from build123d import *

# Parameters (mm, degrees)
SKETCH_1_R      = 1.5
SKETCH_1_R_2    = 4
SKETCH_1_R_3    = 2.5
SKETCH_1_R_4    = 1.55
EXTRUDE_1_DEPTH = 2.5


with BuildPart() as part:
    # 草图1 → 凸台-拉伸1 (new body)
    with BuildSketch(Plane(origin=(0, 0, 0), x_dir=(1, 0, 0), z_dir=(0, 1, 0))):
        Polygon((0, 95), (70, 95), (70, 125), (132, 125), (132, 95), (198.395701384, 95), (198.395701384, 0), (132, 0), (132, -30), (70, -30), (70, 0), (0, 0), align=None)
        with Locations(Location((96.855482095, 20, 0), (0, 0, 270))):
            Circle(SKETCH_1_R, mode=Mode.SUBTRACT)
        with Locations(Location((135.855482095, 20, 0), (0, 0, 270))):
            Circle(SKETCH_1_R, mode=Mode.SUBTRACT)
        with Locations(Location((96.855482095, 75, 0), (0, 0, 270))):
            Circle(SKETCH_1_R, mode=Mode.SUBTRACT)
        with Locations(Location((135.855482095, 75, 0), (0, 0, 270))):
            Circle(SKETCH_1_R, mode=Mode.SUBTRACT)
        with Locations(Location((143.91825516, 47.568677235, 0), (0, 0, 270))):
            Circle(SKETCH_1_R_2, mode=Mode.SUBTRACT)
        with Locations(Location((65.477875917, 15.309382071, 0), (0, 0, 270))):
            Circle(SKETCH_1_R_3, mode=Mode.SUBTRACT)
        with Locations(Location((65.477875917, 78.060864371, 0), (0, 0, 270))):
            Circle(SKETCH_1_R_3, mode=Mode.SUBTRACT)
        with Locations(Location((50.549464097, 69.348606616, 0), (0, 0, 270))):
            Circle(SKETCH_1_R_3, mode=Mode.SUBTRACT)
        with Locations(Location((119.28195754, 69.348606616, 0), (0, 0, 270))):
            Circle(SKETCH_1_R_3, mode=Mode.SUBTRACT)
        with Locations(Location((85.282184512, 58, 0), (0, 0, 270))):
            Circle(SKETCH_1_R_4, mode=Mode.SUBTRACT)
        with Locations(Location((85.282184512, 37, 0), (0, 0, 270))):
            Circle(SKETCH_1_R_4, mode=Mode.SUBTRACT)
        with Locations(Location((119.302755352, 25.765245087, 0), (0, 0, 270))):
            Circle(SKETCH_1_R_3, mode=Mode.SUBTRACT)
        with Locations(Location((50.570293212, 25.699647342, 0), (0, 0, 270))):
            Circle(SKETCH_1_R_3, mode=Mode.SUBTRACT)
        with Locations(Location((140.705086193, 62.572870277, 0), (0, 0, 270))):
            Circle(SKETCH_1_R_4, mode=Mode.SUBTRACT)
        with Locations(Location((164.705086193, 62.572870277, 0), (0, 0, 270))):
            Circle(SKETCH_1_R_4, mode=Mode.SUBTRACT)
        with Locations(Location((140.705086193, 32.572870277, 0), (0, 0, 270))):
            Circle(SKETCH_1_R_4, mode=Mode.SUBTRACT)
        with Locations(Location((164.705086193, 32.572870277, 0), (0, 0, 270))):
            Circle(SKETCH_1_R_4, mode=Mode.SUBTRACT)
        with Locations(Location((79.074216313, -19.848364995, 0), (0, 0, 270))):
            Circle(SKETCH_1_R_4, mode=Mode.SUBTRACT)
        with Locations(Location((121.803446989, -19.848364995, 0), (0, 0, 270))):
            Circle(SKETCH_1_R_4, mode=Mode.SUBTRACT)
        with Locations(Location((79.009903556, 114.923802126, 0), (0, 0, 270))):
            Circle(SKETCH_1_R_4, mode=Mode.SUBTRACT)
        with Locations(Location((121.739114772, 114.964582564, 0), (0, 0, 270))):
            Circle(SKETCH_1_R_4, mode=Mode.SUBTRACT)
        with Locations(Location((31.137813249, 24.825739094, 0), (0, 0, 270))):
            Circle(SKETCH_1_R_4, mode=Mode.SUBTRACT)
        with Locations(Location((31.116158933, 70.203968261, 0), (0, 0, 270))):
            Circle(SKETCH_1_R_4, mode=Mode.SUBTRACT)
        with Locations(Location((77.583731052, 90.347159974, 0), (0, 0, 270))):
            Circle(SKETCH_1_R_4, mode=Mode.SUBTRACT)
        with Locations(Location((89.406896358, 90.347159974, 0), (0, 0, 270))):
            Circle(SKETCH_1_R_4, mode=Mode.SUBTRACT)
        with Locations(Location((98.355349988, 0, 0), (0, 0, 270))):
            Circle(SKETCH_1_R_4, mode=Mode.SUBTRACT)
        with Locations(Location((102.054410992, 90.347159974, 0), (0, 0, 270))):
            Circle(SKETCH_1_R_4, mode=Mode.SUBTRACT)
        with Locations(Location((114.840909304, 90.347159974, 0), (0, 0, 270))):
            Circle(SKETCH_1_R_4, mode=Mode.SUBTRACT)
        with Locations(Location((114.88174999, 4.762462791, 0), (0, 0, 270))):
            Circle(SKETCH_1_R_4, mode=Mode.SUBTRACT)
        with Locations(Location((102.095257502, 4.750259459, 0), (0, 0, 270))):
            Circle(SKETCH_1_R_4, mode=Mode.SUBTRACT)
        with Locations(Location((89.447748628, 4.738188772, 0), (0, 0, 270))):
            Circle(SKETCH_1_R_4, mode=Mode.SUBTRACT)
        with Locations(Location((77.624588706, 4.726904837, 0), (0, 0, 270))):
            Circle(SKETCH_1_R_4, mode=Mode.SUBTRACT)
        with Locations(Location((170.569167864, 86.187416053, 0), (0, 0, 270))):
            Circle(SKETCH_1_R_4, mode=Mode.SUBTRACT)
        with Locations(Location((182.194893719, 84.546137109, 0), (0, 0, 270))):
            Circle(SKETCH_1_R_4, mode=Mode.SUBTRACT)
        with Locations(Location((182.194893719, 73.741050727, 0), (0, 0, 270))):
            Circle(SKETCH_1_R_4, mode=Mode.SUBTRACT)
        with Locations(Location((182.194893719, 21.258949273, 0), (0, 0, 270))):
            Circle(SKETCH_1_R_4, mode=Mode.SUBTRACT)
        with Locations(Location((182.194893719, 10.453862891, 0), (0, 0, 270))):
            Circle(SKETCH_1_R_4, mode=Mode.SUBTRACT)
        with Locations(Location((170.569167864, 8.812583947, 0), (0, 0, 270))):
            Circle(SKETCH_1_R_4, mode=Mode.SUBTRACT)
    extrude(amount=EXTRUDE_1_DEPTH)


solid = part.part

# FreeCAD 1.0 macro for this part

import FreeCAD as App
import Part
import Sketcher


def add_polygon(sketch, points):
    """Adds a closed chain of lines whose ends are joined by coincident constraints."""
    first, n = sketch.GeometryCount, len(points)
    for a, b in zip(points, points[1:] + points[:1]):
        sketch.addGeometry(Part.LineSegment(App.Vector(*a, 0), App.Vector(*b, 0)), False)
    for i in range(n):
        sketch.addConstraint(Sketcher.Constraint("Coincident", first + i, 2, first + (i + 1) % n, 1))

doc = App.newDocument("Part")
body = doc.addObject("PartDesign::Body", "Body")

sketch1 = body.newObject("Sketcher::SketchObject", "Sketch")
sketch1.AttachmentSupport = (doc.getObject("XZ_Plane"), [""])
sketch1.MapMode = "FlatFace"
add_polygon(sketch1, [(70, -95), (0, -95), (0, 0), (70, 0), (70, 30), (132, 30), (132, 0), (198.395701, 0), (198.395701, -95), (132, -95), (132, -125), (70, -125)])
sketch1.addGeometry(Part.Circle(App.Vector(182.194894, -10.453863, 0), App.Vector(0, 0, 1), 1.55), False)
sketch1.addGeometry(Part.Circle(App.Vector(170.569168, -8.812584, 0), App.Vector(0, 0, 1), 1.55), False)
sketch1.addGeometry(Part.Circle(App.Vector(121.803447, 19.848365, 0), App.Vector(0, 0, 1), 1.55), False)
sketch1.addGeometry(Part.Circle(App.Vector(114.88175, -4.762463, 0), App.Vector(0, 0, 1), 1.55), False)
sketch1.addGeometry(Part.Circle(App.Vector(182.194894, -21.258949, 0), App.Vector(0, 0, 1), 1.55), False)
sketch1.addGeometry(Part.Circle(App.Vector(164.705086, -32.57287, 0), App.Vector(0, 0, 1), 1.55), False)
sketch1.addGeometry(Part.Circle(App.Vector(135.855482, -20, 0), App.Vector(0, 0, 1), 1.5), False)
sketch1.addGeometry(Part.Circle(App.Vector(119.302755, -25.765245, 0), App.Vector(0, 0, 1), 2.5), False)
sketch1.addGeometry(Part.Circle(App.Vector(140.705086, -32.57287, 0), App.Vector(0, 0, 1), 1.55), False)
sketch1.addGeometry(Part.Circle(App.Vector(79.074216, 19.848365, 0), App.Vector(0, 0, 1), 1.55), False)
sketch1.addGeometry(Part.Circle(App.Vector(98.35535, 0, 0), App.Vector(0, 0, 1), 1.55), False)
sketch1.addGeometry(Part.Circle(App.Vector(102.095258, -4.750259, 0), App.Vector(0, 0, 1), 1.55), False)
sketch1.addGeometry(Part.Circle(App.Vector(89.447749, -4.738189, 0), App.Vector(0, 0, 1), 1.55), False)
sketch1.addGeometry(Part.Circle(App.Vector(77.624589, -4.726905, 0), App.Vector(0, 0, 1), 1.55), False)
sketch1.addGeometry(Part.Circle(App.Vector(96.855482, -20, 0), App.Vector(0, 0, 1), 1.5), False)
sketch1.addGeometry(Part.Circle(App.Vector(85.282185, -37, 0), App.Vector(0, 0, 1), 1.55), False)
sketch1.addGeometry(Part.Circle(App.Vector(65.477876, -15.309382, 0), App.Vector(0, 0, 1), 2.5), False)
sketch1.addGeometry(Part.Circle(App.Vector(50.570293, -25.699647, 0), App.Vector(0, 0, 1), 2.5), False)
sketch1.addGeometry(Part.Circle(App.Vector(31.137813, -24.825739, 0), App.Vector(0, 0, 1), 1.55), False)
sketch1.addGeometry(Part.Circle(App.Vector(164.705086, -62.57287, 0), App.Vector(0, 0, 1), 1.55), False)
sketch1.addGeometry(Part.Circle(App.Vector(182.194894, -73.741051, 0), App.Vector(0, 0, 1), 1.55), False)
sketch1.addGeometry(Part.Circle(App.Vector(143.918255, -47.568677, 0), App.Vector(0, 0, 1), 4), False)
sketch1.addGeometry(Part.Circle(App.Vector(140.705086, -62.57287, 0), App.Vector(0, 0, 1), 1.55), False)
sketch1.addGeometry(Part.Circle(App.Vector(135.855482, -75, 0), App.Vector(0, 0, 1), 1.5), False)
sketch1.addGeometry(Part.Circle(App.Vector(119.281958, -69.348607, 0), App.Vector(0, 0, 1), 2.5), False)
sketch1.addGeometry(Part.Circle(App.Vector(182.194894, -84.546137, 0), App.Vector(0, 0, 1), 1.55), False)
sketch1.addGeometry(Part.Circle(App.Vector(170.569168, -86.187416, 0), App.Vector(0, 0, 1), 1.55), False)
sketch1.addGeometry(Part.Circle(App.Vector(114.840909, -90.34716, 0), App.Vector(0, 0, 1), 1.55), False)
sketch1.addGeometry(Part.Circle(App.Vector(121.739115, -114.964583, 0), App.Vector(0, 0, 1), 1.55), False)
sketch1.addGeometry(Part.Circle(App.Vector(85.282185, -58, 0), App.Vector(0, 0, 1), 1.55), False)
sketch1.addGeometry(Part.Circle(App.Vector(96.855482, -75, 0), App.Vector(0, 0, 1), 1.5), False)
sketch1.addGeometry(Part.Circle(App.Vector(50.549464, -69.348607, 0), App.Vector(0, 0, 1), 2.5), False)
sketch1.addGeometry(Part.Circle(App.Vector(65.477876, -78.060864, 0), App.Vector(0, 0, 1), 2.5), False)
sketch1.addGeometry(Part.Circle(App.Vector(31.116159, -70.203968, 0), App.Vector(0, 0, 1), 1.55), False)
sketch1.addGeometry(Part.Circle(App.Vector(102.054411, -90.34716, 0), App.Vector(0, 0, 1), 1.55), False)
sketch1.addGeometry(Part.Circle(App.Vector(89.406896, -90.34716, 0), App.Vector(0, 0, 1), 1.55), False)
sketch1.addGeometry(Part.Circle(App.Vector(77.583731, -90.34716, 0), App.Vector(0, 0, 1), 1.55), False)
sketch1.addGeometry(Part.Circle(App.Vector(79.009904, -114.923802, 0), App.Vector(0, 0, 1), 1.55), False)
sketch1.addConstraint(Sketcher.Constraint("Horizontal", 0))
sketch1.addConstraint(Sketcher.Constraint("Vertical", 1))
sketch1.addConstraint(Sketcher.Constraint("Horizontal", 2))
sketch1.addConstraint(Sketcher.Constraint("Vertical", 3))
sketch1.addConstraint(Sketcher.Constraint("Horizontal", 4))
sketch1.addConstraint(Sketcher.Constraint("Vertical", 5))
sketch1.addConstraint(Sketcher.Constraint("Horizontal", 6))
sketch1.addConstraint(Sketcher.Constraint("Vertical", 7))
sketch1.addConstraint(Sketcher.Constraint("Horizontal", 8))
sketch1.addConstraint(Sketcher.Constraint("Vertical", 9))
sketch1.addConstraint(Sketcher.Constraint("Horizontal", 10))
sketch1.addConstraint(Sketcher.Constraint("Vertical", 11))
sketch1.addConstraint(Sketcher.Constraint("Coincident", 1, 2, -1, 1))
sketch1.addConstraint(Sketcher.Constraint("Equal", 12, 13))
sketch1.addConstraint(Sketcher.Constraint("Equal", 13, 14))
sketch1.addConstraint(Sketcher.Constraint("Equal", 14, 15))
sketch1.addConstraint(Sketcher.Constraint("Equal", 15, 16))
sketch1.addConstraint(Sketcher.Constraint("Equal", 16, 17))
sketch1.addConstraint(Sketcher.Constraint("Equal", 17, 20))
sketch1.addConstraint(Sketcher.Constraint("Equal", 20, 21))
sketch1.addConstraint(Sketcher.Constraint("Equal", 21, 22))
sketch1.addConstraint(Sketcher.Constraint("Equal", 22, 23))
sketch1.addConstraint(Sketcher.Constraint("Equal", 23, 24))
sketch1.addConstraint(Sketcher.Constraint("Equal", 24, 25))
sketch1.addConstraint(Sketcher.Constraint("Equal", 18, 26))
sketch1.addConstraint(Sketcher.Constraint("Equal", 25, 27))
sketch1.addConstraint(Sketcher.Constraint("Equal", 19, 28))
sketch1.addConstraint(Sketcher.Constraint("Equal", 28, 29))
sketch1.addConstraint(Sketcher.Constraint("Equal", 27, 30))
sketch1.addConstraint(Sketcher.Constraint("Equal", 30, 31))
sketch1.addConstraint(Sketcher.Constraint("Equal", 31, 32))
sketch1.addConstraint(Sketcher.Constraint("Equal", 32, 34))
sketch1.addConstraint(Sketcher.Constraint("Equal", 26, 35))
sketch1.addConstraint(Sketcher.Constraint("Equal", 29, 36))
sketch1.addConstraint(Sketcher.Constraint("Equal", 34, 37))
sketch1.addConstraint(Sketcher.Constraint("Equal", 37, 38))
sketch1.addConstraint(Sketcher.Constraint("Equal", 38, 39))
sketch1.addConstraint(Sketcher.Constraint("Equal", 39, 40))
sketch1.addConstraint(Sketcher.Constraint("Equal", 40, 41))
sketch1.addConstraint(Sketcher.Constraint("Equal", 35, 42))
sketch1.addConstraint(Sketcher.Constraint("Equal", 36, 43))
sketch1.addConstraint(Sketcher.Constraint("Equal", 43, 44))
sketch1.addConstraint(Sketcher.Constraint("Equal", 41, 45))
sketch1.addConstraint(Sketcher.Constraint("Equal", 45, 46))
sketch1.addConstraint(Sketcher.Constraint("Equal", 46, 47))
sketch1.addConstraint(Sketcher.Constraint("Equal", 47, 48))
sketch1.addConstraint(Sketcher.Constraint("Equal", 48, 49))
sketch1.addConstraint(Sketcher.Constraint("PointOnObject", 22, 3, -1))
sketch1.addConstraint(Sketcher.Constraint("PointOnObject", 5, 2, -1))
sketch1.addConstraint(Sketcher.Constraint("Horizontal", 17, 3, 20, 3))
sketch1.addConstraint(Sketcher.Constraint("Horizontal", 14, 3, 21, 3))
sketch1.addConstraint(Sketcher.Constraint("Horizontal", 18, 3, 26, 3))
sketch1.addConstraint(Sketcher.Constraint("Horizontal", 31, 3, 34, 3))
sketch1.addConstraint(Sketcher.Constraint("Horizontal", 35, 3, 42, 3))
sketch1.addConstraint(Sketcher.Constraint("Horizontal", 36, 3, 43, 3))
sketch1.addConstraint(Sketcher.Constraint("Horizontal", 39, 3, 46, 3))
sketch1.addConstraint(Sketcher.Constraint("Horizontal", 46, 3, 47, 3))
sketch1.addConstraint(Sketcher.Constraint("Horizontal", 47, 3, 48, 3))
sketch1.addConstraint(Sketcher.Constraint("Horizontal", 0, 2, 7, 2))
sketch1.addConstraint(Sketcher.Constraint("Vertical", 12, 3, 16, 3))
sketch1.addConstraint(Sketcher.Constraint("Vertical", 17, 3, 31, 3))
sketch1.addConstraint(Sketcher.Constraint("Vertical", 16, 3, 32, 3))
sketch1.addConstraint(Sketcher.Constraint("Vertical", 20, 3, 34, 3))
sketch1.addConstraint(Sketcher.Constraint("Vertical", 18, 3, 35, 3))
sketch1.addConstraint(Sketcher.Constraint("Vertical", 32, 3, 37, 3))
sketch1.addConstraint(Sketcher.Constraint("Vertical", 13, 3, 38, 3))
sketch1.addConstraint(Sketcher.Constraint("Vertical", 27, 3, 41, 3))
sketch1.addConstraint(Sketcher.Constraint("Vertical", 26, 3, 42, 3))
sketch1.addConstraint(Sketcher.Constraint("Vertical", 28, 3, 44, 3))
sketch1.addConstraint(Sketcher.Constraint("Vertical", 5, 2, 8, 2))
sketch1.addConstraint(Sketcher.Constraint("Vertical", 3, 2, 10, 2))
sketch1.addConstraint(Sketcher.Constraint("Equal", 5, 9))
sketch1.addConstraint(Sketcher.Constraint("Diameter", 18, 3.0))
sketch1.addConstraint(Sketcher.Constraint("Diameter", 19, 5.0))
sketch1.addConstraint(Sketcher.Constraint("Diameter", 33, 8.0))
sketch1.addConstraint(Sketcher.Constraint("Diameter", 12, 3.1))
sketch1.addConstraint(Sketcher.Constraint("DistanceX", 0, 2, 0, 1, 70.0))
sketch1.addConstraint(Sketcher.Constraint("DistanceX", 4, 1, 4, 2, 62.0))
sketch1.addConstraint(Sketcher.Constraint("DistanceY", 1, 1, 1, 2, 95.0))
sketch1.addConstraint(Sketcher.Constraint("DistanceY", 3, 1, 3, 2, 30.0))
sketch1.addConstraint(Sketcher.Constraint("DistanceY", 18, 3, -1, 1, 20.0))
sketch1.addConstraint(Sketcher.Constraint("DistanceY", 27, 3, -1, 1, 37.0))
sketch1.addConstraint(Sketcher.Constraint("DistanceY", 35, 3, -1, 1, 75.0))
sketch1.addConstraint(Sketcher.Constraint("DistanceY", 41, 3, -1, 1, 58.0))
sketch1.addConstraint(Sketcher.Constraint("DistanceX", 20, 3, 17, 3, 24.0))
sketch1.addConstraint(Sketcher.Constraint("DistanceY", 31, 3, 17, 3, 30.0))
sketch1.addConstraint(Sketcher.Constraint("DistanceX", 42, 3, 35, 3, 39.0))
sketch1.addConstraint(Sketcher.Constraint("DistanceX", 6, 1, 6, 2, 66.395701))
sketch1.addConstraint(Sketcher.Constraint("DistanceX", 24, 3, 15, 3, 25.434001))
sketch1.addConstraint(Sketcher.Constraint("DistanceY", 12, 3, 15, 3, 5.6914))
sketch1.addConstraint(Sketcher.Constraint("DistanceX", 22, 3, 15, 3, 16.5264))
sketch1.addConstraint(Sketcher.Constraint("DistanceY", 32, 3, 16, 3, 52.482101))
sketch1.addConstraint(Sketcher.Constraint("DistanceX", 19, 3, 33, 3, 24.6155))
sketch1.addConstraint(Sketcher.Constraint("DistanceX", 46, 3, 39, 3, 12.786498))
sketch1.addConstraint(Sketcher.Constraint("DistanceX", -1, 1, 15, 3, 114.88175))
sketch1.addConstraint(Sketcher.Constraint("DistanceY", 16, 3, -1, 1, 21.258949))
sketch1.addConstraint(Sketcher.Constraint("DistanceY", 17, 3, -1, 1, 32.57287))
sketch1.addConstraint(Sketcher.Constraint("DistanceY", 23, 3, -1, 1, 4.750259))
sketch1.addConstraint(Sketcher.Constraint("DistanceY", 24, 3, -1, 1, 4.738189))
sketch1.addConstraint(Sketcher.Constraint("DistanceX", -1, 1, 25, 3, 77.624589))
sketch1.addConstraint(Sketcher.Constraint("DistanceY", 30, 3, -1, 1, 24.825739))
sketch1.addConstraint(Sketcher.Constraint("DistanceX", -1, 1, 39, 3, 114.840909))
sketch1.addConstraint(Sketcher.Constraint("DistanceY", 39, 3, -1, 1, 90.34716))
sketch1.addConstraint(Sketcher.Constraint("DistanceX", -1, 1, 45, 3, 31.116159))
sketch1.addConstraint(Sketcher.Constraint("DistanceY", 45, 3, -1, 1, 70.203968))
sketch1.addConstraint(Sketcher.Constraint("DistanceX", -1, 1, 48, 3, 77.583731))
sketch1.addConstraint(Sketcher.Constraint("DistanceY", 12, 3, 13, 3, 1.641279))
sketch1.addConstraint(Sketcher.Constraint("DistanceX", 14, 3, 13, 3, 48.765721))
sketch1.addConstraint(Sketcher.Constraint("DistanceY", 13, 3, 14, 3, 28.660949))
sketch1.addConstraint(Sketcher.Constraint("DistanceX", 17, 3, 13, 3, 5.864082))
sketch1.addConstraint(Sketcher.Constraint("DistanceX", 18, 3, 16, 3, 46.339412))
sketch1.addConstraint(Sketcher.Constraint("DistanceX", 19, 3, 14, 3, 2.500692))
sketch1.addConstraint(Sketcher.Constraint("DistanceY", 19, 3, 14, 3, 45.61361))
sketch1.addConstraint(Sketcher.Constraint("DistanceX", 21, 3, 14, 3, 42.729231))
sketch1.addConstraint(Sketcher.Constraint("DistanceX", 23, 3, 14, 3, 19.708189))
sketch1.addConstraint(Sketcher.Constraint("DistanceX", 24, 3, 23, 3, 12.647509))
sketch1.addConstraint(Sketcher.Constraint("DistanceY", 25, 3, 21, 3, 24.57527))
sketch1.addConstraint(Sketcher.Constraint("DistanceX", 27, 3, 19, 3, 34.020571))
sketch1.addConstraint(Sketcher.Constraint("DistanceX", 28, 3, 27, 3, 19.804309))
sketch1.addConstraint(Sketcher.Constraint("DistanceX", 29, 3, 27, 3, 34.711891))
sketch1.addConstraint(Sketcher.Constraint("DistanceY", 29, 3, 24, 3, 20.961459))
sketch1.addConstraint(Sketcher.Constraint("DistanceX", 29, 3, 26, 3, 46.285189))
sketch1.addConstraint(Sketcher.Constraint("DistanceX", 30, 3, 29, 3, 19.43248))
sketch1.addConstraint(Sketcher.Constraint("DistanceX", 36, 3, 34, 3, 21.423129))
sketch1.addConstraint(Sketcher.Constraint("DistanceY", 36, 3, 33, 3, 21.779929))
sketch1.addConstraint(Sketcher.Constraint("DistanceY", 36, 3, 19, 3, 43.583362))
sketch1.addConstraint(Sketcher.Constraint("DistanceY", 37, 3, 33, 3, 36.97746))
sketch1.addConstraint(Sketcher.Constraint("DistanceY", 38, 3, 37, 3, 1.641279))
sketch1.addConstraint(Sketcher.Constraint("DistanceX", 40, 3, 34, 3, 18.965971))
sketch1.addConstraint(Sketcher.Constraint("DistanceX", 43, 3, 41, 3, 34.73272))
sketch1.addConstraint(Sketcher.Constraint("DistanceY", 43, 3, 29, 3, 43.648959))
sketch1.addConstraint(Sketcher.Constraint("DistanceX", 44, 3, 47, 3, 23.92902))
sketch1.addConstraint(Sketcher.Constraint("DistanceX", 49, 3, 40, 3, 42.729211))
sketch1.addConstraint(Sketcher.Constraint("DistanceY", 40, 3, 49, 3, 0.04078))
sketch1.addConstraint(Sketcher.Constraint("DistanceY", 28, 3, -1, 1, 15.309382))
sketch1.addConstraint(Sketcher.Constraint("DistanceY", 40, 3, -1, 1, 114.964583))
sketch1.addConstraint(Sketcher.Constraint("DistanceY", 44, 3, -1, 1, 78.060864))
pad1 = body.newObject("PartDesign::Pad", "Pad")
pad1.Profile = sketch1
pad1.Length = 2.5
pad1.Reversed = True

doc.recompute()
